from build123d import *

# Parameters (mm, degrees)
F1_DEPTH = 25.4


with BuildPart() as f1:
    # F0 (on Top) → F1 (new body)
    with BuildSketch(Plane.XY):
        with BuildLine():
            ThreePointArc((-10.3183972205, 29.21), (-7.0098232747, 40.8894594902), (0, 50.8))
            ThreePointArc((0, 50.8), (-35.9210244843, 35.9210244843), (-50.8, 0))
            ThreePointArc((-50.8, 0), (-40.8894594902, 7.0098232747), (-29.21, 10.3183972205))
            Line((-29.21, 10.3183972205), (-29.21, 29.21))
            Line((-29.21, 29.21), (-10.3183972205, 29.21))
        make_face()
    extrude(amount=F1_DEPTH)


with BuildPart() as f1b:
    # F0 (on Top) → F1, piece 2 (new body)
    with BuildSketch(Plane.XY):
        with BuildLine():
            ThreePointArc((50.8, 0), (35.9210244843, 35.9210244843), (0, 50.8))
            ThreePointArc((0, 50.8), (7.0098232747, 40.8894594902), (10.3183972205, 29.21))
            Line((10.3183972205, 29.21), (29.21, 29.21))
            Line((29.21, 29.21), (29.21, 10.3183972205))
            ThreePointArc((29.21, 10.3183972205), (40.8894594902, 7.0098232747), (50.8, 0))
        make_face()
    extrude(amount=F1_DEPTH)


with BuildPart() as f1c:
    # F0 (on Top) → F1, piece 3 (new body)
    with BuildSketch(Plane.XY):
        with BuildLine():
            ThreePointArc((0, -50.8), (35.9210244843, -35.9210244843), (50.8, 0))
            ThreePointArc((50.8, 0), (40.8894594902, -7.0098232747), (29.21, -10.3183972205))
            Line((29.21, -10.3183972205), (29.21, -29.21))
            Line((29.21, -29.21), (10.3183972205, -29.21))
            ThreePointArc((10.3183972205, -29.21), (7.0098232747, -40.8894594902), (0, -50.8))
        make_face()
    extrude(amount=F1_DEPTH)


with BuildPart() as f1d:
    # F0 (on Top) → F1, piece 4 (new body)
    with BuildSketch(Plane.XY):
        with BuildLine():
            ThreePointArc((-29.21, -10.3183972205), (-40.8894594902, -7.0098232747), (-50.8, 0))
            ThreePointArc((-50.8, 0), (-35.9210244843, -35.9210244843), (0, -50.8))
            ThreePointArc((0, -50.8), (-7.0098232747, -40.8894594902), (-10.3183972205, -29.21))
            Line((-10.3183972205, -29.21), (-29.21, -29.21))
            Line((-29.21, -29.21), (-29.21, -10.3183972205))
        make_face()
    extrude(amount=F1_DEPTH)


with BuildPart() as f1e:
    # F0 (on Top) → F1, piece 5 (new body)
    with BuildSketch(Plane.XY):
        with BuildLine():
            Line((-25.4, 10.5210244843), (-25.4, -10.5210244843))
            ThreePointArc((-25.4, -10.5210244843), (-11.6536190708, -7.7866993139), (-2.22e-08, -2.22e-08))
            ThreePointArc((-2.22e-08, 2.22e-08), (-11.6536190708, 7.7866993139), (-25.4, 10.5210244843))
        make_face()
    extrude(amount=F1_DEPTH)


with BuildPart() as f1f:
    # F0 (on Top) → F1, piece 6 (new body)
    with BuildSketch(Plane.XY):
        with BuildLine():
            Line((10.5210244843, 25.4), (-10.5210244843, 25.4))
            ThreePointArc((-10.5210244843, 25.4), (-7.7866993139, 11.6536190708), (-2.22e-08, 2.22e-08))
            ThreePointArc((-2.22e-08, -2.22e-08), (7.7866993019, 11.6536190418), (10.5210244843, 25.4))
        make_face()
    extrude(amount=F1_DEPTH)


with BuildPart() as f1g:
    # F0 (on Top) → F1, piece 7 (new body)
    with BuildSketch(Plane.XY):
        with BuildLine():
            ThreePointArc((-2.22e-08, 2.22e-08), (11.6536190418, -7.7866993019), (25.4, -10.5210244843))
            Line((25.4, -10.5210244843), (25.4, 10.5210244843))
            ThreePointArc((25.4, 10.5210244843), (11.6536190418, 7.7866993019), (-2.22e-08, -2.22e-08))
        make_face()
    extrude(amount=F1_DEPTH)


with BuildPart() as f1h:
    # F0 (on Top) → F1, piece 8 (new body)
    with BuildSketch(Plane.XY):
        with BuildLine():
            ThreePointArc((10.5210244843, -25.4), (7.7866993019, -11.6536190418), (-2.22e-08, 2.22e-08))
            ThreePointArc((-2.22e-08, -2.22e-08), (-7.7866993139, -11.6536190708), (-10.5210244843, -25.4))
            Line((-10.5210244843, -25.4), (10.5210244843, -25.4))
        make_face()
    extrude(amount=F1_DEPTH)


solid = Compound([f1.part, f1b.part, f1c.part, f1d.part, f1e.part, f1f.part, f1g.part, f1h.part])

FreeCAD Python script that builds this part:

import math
import FreeCAD as App
import Part
import Sketcher
from FreeCAD import Vector
Q = App.Units.Quantity

doc = App.newDocument("Part")
body = doc.addObject("PartDesign::Body", "Body")

# Sketch on XY plane
sketch1 = body.newObject("Sketcher::SketchObject", "Sketch")
sketch1.AttachmentSupport = (doc.getObject("XY_Plane"), [""])
sketch1.MapMode = "FlatFace"
sketch1.addGeometry(Part.ArcOfCircle(Part.Circle(Vector(25, 25, 0), Vector(0, 0, 1), 36), math.radians(135), math.radians(174)), False)
sketch1.addGeometry(Part.ArcOfCircle(Part.Circle(Vector(0, 0, 0), Vector(0, 0, 1), 51), math.radians(90), math.radians(180)), False)
sketch1.addGeometry(Part.ArcOfCircle(Part.Circle(Vector(-25, -25, 0), Vector(0, 0, 1), 36), math.radians(96), math.radians(135)), False)
sketch1.addGeometry(Part.LineSegment(Vector(-29, 10, 0), Vector(-29, 29, 0)), False)
sketch1.addGeometry(Part.LineSegment(Vector(-29, 29, 0), Vector(-10, 29, 0)), False)
sketch1.addConstraint(Sketcher.Constraint("Coincident", 0, 1, 1, 1))
sketch1.addConstraint(Sketcher.Constraint("Coincident", 1, 2, 2, 2))
sketch1.addConstraint(Sketcher.Constraint("Coincident", 2, 1, 3, 1))
sketch1.addConstraint(Sketcher.Constraint("Coincident", 3, 2, 4, 1))
sketch1.addConstraint(Sketcher.Constraint("Coincident", 4, 2, 0, 2))
sketch1.addConstraint(Sketcher.Constraint("Vertical", 3))
sketch1.addConstraint(Sketcher.Constraint("Horizontal", 4))
sketch1.addConstraint(Sketcher.Constraint("Coincident", 1, 3, -1, 1))
sketch1.addConstraint(Sketcher.Constraint("Equal", 0, 2))
sketch1.addConstraint(Sketcher.Constraint("Symmetric", 0, 3, 2, 3, -1, 1))
sketch1.addConstraint(Sketcher.Constraint("PointOnObject", 0, 1, -2))
sketch1.addConstraint(Sketcher.Constraint("PointOnObject", 1, 2, -1))
sketch1.addConstraint(Sketcher.Constraint("Equal", 4, 3))
sketch1.addConstraint(Sketcher.Constraint("Radius", 1, Q("2 in")))
sketch1.addConstraint(Sketcher.Constraint("DistanceX", -1, 1, 0, 3, Q("1 in")))
sketch1.addConstraint(Sketcher.Constraint("DistanceX", 2, 1, -1, 1, Q("1.15 in")))
pad1 = body.newObject("PartDesign::Pad", "Pad")
pad1.Profile = sketch1
pad1.Length = Q("1 in")
body2 = doc.addObject("PartDesign::Body", "Body001")

# Sketch on XY plane
sketch2 = body2.newObject("Sketcher::SketchObject", "Sketch001")
sketch2.AttachmentSupport = (doc.getObject("XY_Plane001"), [""])
sketch2.MapMode = "FlatFace"
sketch2.addGeometry(Part.ArcOfCircle(Part.Circle(Vector(0, 0, 0), Vector(0, 0, 1), 51), math.radians(0), math.radians(90)), False)
sketch2.addGeometry(Part.ArcOfCircle(Part.Circle(Vector(-25, 25, 0), Vector(0, 0, 1), 36), math.radians(6), math.radians(45)), False)
sketch2.addGeometry(Part.LineSegment(Vector(10, 29, 0), Vector(29, 29, 0)), False)
sketch2.addGeometry(Part.LineSegment(Vector(29, 29, 0), Vector(29, 10, 0)), False)
sketch2.addGeometry(Part.ArcOfCircle(Part.Circle(Vector(25, -25, 0), Vector(0, 0, 1), 36), math.radians(45), math.radians(84)), False)
sketch2.addConstraint(Sketcher.Constraint("Coincident", 0, 2, 1, 2))
sketch2.addConstraint(Sketcher.Constraint("Coincident", 1, 1, 2, 1))
sketch2.addConstraint(Sketcher.Constraint("Coincident", 2, 2, 3, 1))
sketch2.addConstraint(Sketcher.Constraint("Coincident", 3, 2, 4, 2))
sketch2.addConstraint(Sketcher.Constraint("Coincident", 4, 1, 0, 1))
sketch2.addConstraint(Sketcher.Constraint("Horizontal", 2))
sketch2.addConstraint(Sketcher.Constraint("Vertical", 3))
sketch2.addConstraint(Sketcher.Constraint("Coincident", 0, 3, -1, 1))
sketch2.addConstraint(Sketcher.Constraint("Equal", 1, 4))
sketch2.addConstraint(Sketcher.Constraint("Symmetric", 1, 3, 4, 3, -1, 1))
sketch2.addConstraint(Sketcher.Constraint("PointOnObject", 0, 2, -2))
sketch2.addConstraint(Sketcher.Constraint("PointOnObject", 4, 1, -1))
sketch2.addConstraint(Sketcher.Constraint("Equal", 2, 3))
sketch2.addConstraint(Sketcher.Constraint("Radius", 0, Q("2 in")))
sketch2.addConstraint(Sketcher.Constraint("DistanceX", 1, 3, -1, 1, Q("1 in")))
sketch2.addConstraint(Sketcher.Constraint("DistanceY", -1, 1, 1, 1, Q("1.15 in")))
pad2 = body2.newObject("PartDesign::Pad", "Pad001")
pad2.Profile = sketch2
pad2.Length = Q("1 in")
body3 = doc.addObject("PartDesign::Body", "Body002")

# Sketch on XY plane
sketch3 = body3.newObject("Sketcher::SketchObject", "Sketch002")
sketch3.AttachmentSupport = (doc.getObject("XY_Plane002"), [""])
sketch3.MapMode = "FlatFace"
sketch3.addGeometry(Part.ArcOfCircle(Part.Circle(Vector(0, 0, 0), Vector(0, 0, 1), 51), math.radians(-90), math.radians(0)), False)
sketch3.addGeometry(Part.ArcOfCircle(Part.Circle(Vector(25, 25, 0), Vector(0, 0, 1), 36), math.radians(-84), math.radians(-45)), False)
sketch3.addGeometry(Part.LineSegment(Vector(29, -10, 0), Vector(29, -29, 0)), False)
sketch3.addGeometry(Part.LineSegment(Vector(29, -29, 0), Vector(10, -29, 0)), False)
sketch3.addGeometry(Part.ArcOfCircle(Part.Circle(Vector(-25, -25, 0), Vector(0, 0, 1), 36), math.radians(-45), math.radians(-6)), False)
sketch3.addConstraint(Sketcher.Constraint("Coincident", 0, 2, 1, 2))
sketch3.addConstraint(Sketcher.Constraint("Coincident", 1, 1, 2, 1))
sketch3.addConstraint(Sketcher.Constraint("Coincident", 2, 2, 3, 1))
sketch3.addConstraint(Sketcher.Constraint("Coincident", 3, 2, 4, 2))
sketch3.addConstraint(Sketcher.Constraint("Coincident", 4, 1, 0, 1))
sketch3.addConstraint(Sketcher.Constraint("Vertical", 2))
sketch3.addConstraint(Sketcher.Constraint("Horizontal", 3))
sketch3.addConstraint(Sketcher.Constraint("Coincident", 0, 3, -1, 1))
sketch3.addConstraint(Sketcher.Constraint("Equal", 1, 4))
sketch3.addConstraint(Sketcher.Constraint("Symmetric", 1, 3, 4, 3, -1, 1))
sketch3.addConstraint(Sketcher.Constraint("PointOnObject", 0, 2, -1))
sketch3.addConstraint(Sketcher.Constraint("PointOnObject", 4, 1, -2))
sketch3.addConstraint(Sketcher.Constraint("Equal", 3, 2))
sketch3.addConstraint(Sketcher.Constraint("Radius", 0, Q("2 in")))
sketch3.addConstraint(Sketcher.Constraint("DistanceX", -1, 1, 1, 3, Q("1 in")))
sketch3.addConstraint(Sketcher.Constraint("DistanceX", -1, 1, 1, 1, Q("1.15 in")))
pad3 = body3.newObject("PartDesign::Pad", "Pad002")
pad3.Profile = sketch3
pad3.Length = Q("1 in")
body4 = doc.addObject("PartDesign::Body", "Body003")

# Sketch on XY plane
sketch4 = body4.newObject("Sketcher::SketchObject", "Sketch003")
sketch4.AttachmentSupport = (doc.getObject("XY_Plane003"), [""])
sketch4.MapMode = "FlatFace"
sketch4.addGeometry(Part.ArcOfCircle(Part.Circle(Vector(-25, 25, 0), Vector(0, 0, 1), 36), math.radians(-135), math.radians(-96)), False)
sketch4.addGeometry(Part.ArcOfCircle(Part.Circle(Vector(0, 0, 0), Vector(0, 0, 1), 51), math.radians(180), math.radians(270)), False)
sketch4.addGeometry(Part.ArcOfCircle(Part.Circle(Vector(25, -25, 0), Vector(0, 0, 1), 36), math.radians(-174), math.radians(-135)), False)
sketch4.addGeometry(Part.LineSegment(Vector(-10, -29, 0), Vector(-29, -29, 0)), False)
sketch4.addGeometry(Part.LineSegment(Vector(-29, -29, 0), Vector(-29, -10, 0)), False)
sketch4.addConstraint(Sketcher.Constraint("Coincident", 0, 1, 1, 1))
sketch4.addConstraint(Sketcher.Constraint("Coincident", 1, 2, 2, 2))
sketch4.addConstraint(Sketcher.Constraint("Coincident", 2, 1, 3, 1))
sketch4.addConstraint(Sketcher.Constraint("Coincident", 3, 2, 4, 1))
sketch4.addConstraint(Sketcher.Constraint("Coincident", 4, 2, 0, 2))
sketch4.addConstraint(Sketcher.Constraint("Horizontal", 3))
sketch4.addConstraint(Sketcher.Constraint("Vertical", 4))
sketch4.addConstraint(Sketcher.Constraint("Coincident", 1, 3, -1, 1))
sketch4.addConstraint(Sketcher.Constraint("Equal", 0, 2))
sketch4.addConstraint(Sketcher.Constraint("Symmetric", 0, 3, 2, 3, -1, 1))
sketch4.addConstraint(Sketcher.Constraint("PointOnObject", 0, 1, -1))
sketch4.addConstraint(Sketcher.Constraint("PointOnObject", 1, 2, -2))
sketch4.addConstraint(Sketcher.Constraint("Equal", 3, 4))
sketch4.addConstraint(Sketcher.Constraint("Radius", 1, Q("2 in")))
sketch4.addConstraint(Sketcher.Constraint("DistanceX", 0, 3, -1, 1, Q("1 in")))
sketch4.addConstraint(Sketcher.Constraint("DistanceY", 2, 1, -1, 1, Q("1.15 in")))
pad4 = body4.newObject("PartDesign::Pad", "Pad003")
pad4.Profile = sketch4
pad4.Length = Q("1 in")
body5 = doc.addObject("PartDesign::Body", "Body004")

# Sketch on XY plane
sketch5 = body5.newObject("Sketcher::SketchObject", "Sketch004")
sketch5.AttachmentSupport = (doc.getObject("XY_Plane004"), [""])
sketch5.MapMode = "FlatFace"
sketch5.addGeometry(Part.LineSegment(Vector(-25, 11, 0), Vector(-25, -11, 0)), False)
sketch5.addGeometry(Part.ArcOfCircle(Part.Circle(Vector(-25, 25, 0), Vector(0, 0, 1), 36), math.radians(-90), math.radians(-45)), False)
sketch5.addGeometry(Part.ArcOfCircle(Part.Circle(Vector(-25, -25, 0), Vector(0, 0, 1), 36), math.radians(45), math.radians(90)), False)
sketch5.addConstraint(Sketcher.Constraint("Coincident", 0, 2, 1, 1))
sketch5.addConstraint(Sketcher.Constraint("Coincident", 1, 2, 2, 1))
sketch5.addConstraint(Sketcher.Constraint("Coincident", 2, 2, 0, 1))
sketch5.addConstraint(Sketcher.Constraint("Vertical", 0))
sketch5.addConstraint(Sketcher.Constraint("Coincident", 1, 2, -1, 1))
sketch5.addConstraint(Sketcher.Constraint("Equal", 1, 2))
sketch5.addConstraint(Sketcher.Constraint("Vertical", 1, 3, 2, 3))
sketch5.addConstraint(Sketcher.Constraint("Vertical", 2, 3, 0, 2))
sketch5.addConstraint(Sketcher.Constraint("DistanceX", 1, 3, -1, 1, Q("1 in")))
sketch5.addConstraint(Sketcher.Constraint("DistanceY", -1, 1, 1, 3, Q("1 in")))
pad5 = body5.newObject("PartDesign::Pad", "Pad004")
pad5.Profile = sketch5
pad5.Length = Q("1 in")
body6 = doc.addObject("PartDesign::Body", "Body005")

# Sketch on XY plane
sketch6 = body6.newObject("Sketcher::SketchObject", "Sketch005")
sketch6.AttachmentSupport = (doc.getObject("XY_Plane005"), [""])
sketch6.MapMode = "FlatFace"
sketch6.addGeometry(Part.LineSegment(Vector(11, 25, 0), Vector(-11, 25, 0)), False)
sketch6.addGeometry(Part.ArcOfCircle(Part.Circle(Vector(25, 25, 0), Vector(0, 0, 1), 36), math.radians(180), math.radians(225)), False)
sketch6.addGeometry(Part.ArcOfCircle(Part.Circle(Vector(-25, 25, 0), Vector(0, 0, 1), 36), math.radians(-45), math.radians(0)), False)
sketch6.addConstraint(Sketcher.Constraint("Coincident", 0, 2, 1, 1))
sketch6.addConstraint(Sketcher.Constraint("Coincident", 1, 2, 2, 1))
sketch6.addConstraint(Sketcher.Constraint("Coincident", 2, 2, 0, 1))
sketch6.addConstraint(Sketcher.Constraint("Horizontal", 0))
sketch6.addConstraint(Sketcher.Constraint("Coincident", 1, 2, -1, 1))
sketch6.addConstraint(Sketcher.Constraint("Equal", 1, 2))
sketch6.addConstraint(Sketcher.Constraint("Horizontal", 1, 3, 2, 3))
sketch6.addConstraint(Sketcher.Constraint("Horizontal", 2, 3, 0, 2))
sketch6.addConstraint(Sketcher.Constraint("DistanceX", -1, 1, 1, 3, Q("1 in")))
sketch6.addConstraint(Sketcher.Constraint("DistanceY", -1, 1, 1, 3, Q("1 in")))
pad6 = body6.newObject("PartDesign::Pad", "Pad005")
pad6.Profile = sketch6
pad6.Length = Q("1 in")
body7 = doc.addObject("PartDesign::Body", "Body006")

# Sketch on XY plane
sketch7 = body7.newObject("Sketcher::SketchObject", "Sketch006")
sketch7.AttachmentSupport = (doc.getObject("XY_Plane006"), [""])
sketch7.MapMode = "FlatFace"
sketch7.addGeometry(Part.ArcOfCircle(Part.Circle(Vector(25, 25, 0), Vector(0, 0, 1), 36), math.radians(-135), math.radians(-90)), False)
sketch7.addGeometry(Part.LineSegment(Vector(25, -11, 0), Vector(25, 11, 0)), False)
sketch7.addGeometry(Part.ArcOfCircle(Part.Circle(Vector(25, -25, 0), Vector(0, 0, 1), 36), math.radians(90), math.radians(135)), False)
sketch7.addConstraint(Sketcher.Constraint("Coincident", 0, 2, 1, 1))
sketch7.addConstraint(Sketcher.Constraint("Coincident", 1, 2, 2, 1))
sketch7.addConstraint(Sketcher.Constraint("Coincident", 2, 2, 0, 1))
sketch7.addConstraint(Sketcher.Constraint("Vertical", 1))
sketch7.addConstraint(Sketcher.Constraint("Coincident", 2, 2, -1, 1))
sketch7.addConstraint(Sketcher.Constraint("Equal", 0, 2))
sketch7.addConstraint(Sketcher.Constraint("Vertical", 0, 3, 2, 3))
sketch7.addConstraint(Sketcher.Constraint("Vertical", 2, 3, 0, 2))
sketch7.addConstraint(Sketcher.Constraint("DistanceX", -1, 1, 0, 3, Q("1 in")))
sketch7.addConstraint(Sketcher.Constraint("DistanceY", -1, 1, 0, 3, Q("1 in")))
pad7 = body7.newObject("PartDesign::Pad", "Pad006")
pad7.Profile = sketch7
pad7.Length = Q("1 in")
body8 = doc.addObject("PartDesign::Body", "Body007")

# Sketch on XY plane
sketch8 = body8.newObject("Sketcher::SketchObject", "Sketch007")
sketch8.AttachmentSupport = (doc.getObject("XY_Plane007"), [""])
sketch8.MapMode = "FlatFace"
sketch8.addGeometry(Part.ArcOfCircle(Part.Circle(Vector(-25, -25, 0), Vector(0, 0, 1), 36), math.radians(0), math.radians(45)), False)
sketch8.addGeometry(Part.ArcOfCircle(Part.Circle(Vector(25, -25, 0), Vector(0, 0, 1), 36), math.radians(135), math.radians(180)), False)
sketch8.addGeometry(Part.LineSegment(Vector(-11, -25, 0), Vector(11, -25, 0)), False)
sketch8.addConstraint(Sketcher.Constraint("Coincident", 0, 2, 1, 1))
sketch8.addConstraint(Sketcher.Constraint("Coincident", 1, 2, 2, 1))
sketch8.addConstraint(Sketcher.Constraint("Coincident", 2, 2, 0, 1))
sketch8.addConstraint(Sketcher.Constraint("Horizontal", 2))
sketch8.addConstraint(Sketcher.Constraint("Coincident", 0, 2, -1, 1))
sketch8.addConstraint(Sketcher.Constraint("Equal", 0, 1))
sketch8.addConstraint(Sketcher.Constraint("Horizontal", 0, 3, 1, 3))
sketch8.addConstraint(Sketcher.Constraint("Horizontal", 0, 3, 1, 2))
sketch8.addConstraint(Sketcher.Constraint("DistanceX", 0, 3, -1, 1, Q("1 in")))
sketch8.addConstraint(Sketcher.Constraint("DistanceY", 0, 3, -1, 1, Q("1 in")))
pad8 = body8.newObject("PartDesign::Pad", "Pad007")
pad8.Profile = sketch8
pad8.Length = Q("1 in")

doc.recompute()
